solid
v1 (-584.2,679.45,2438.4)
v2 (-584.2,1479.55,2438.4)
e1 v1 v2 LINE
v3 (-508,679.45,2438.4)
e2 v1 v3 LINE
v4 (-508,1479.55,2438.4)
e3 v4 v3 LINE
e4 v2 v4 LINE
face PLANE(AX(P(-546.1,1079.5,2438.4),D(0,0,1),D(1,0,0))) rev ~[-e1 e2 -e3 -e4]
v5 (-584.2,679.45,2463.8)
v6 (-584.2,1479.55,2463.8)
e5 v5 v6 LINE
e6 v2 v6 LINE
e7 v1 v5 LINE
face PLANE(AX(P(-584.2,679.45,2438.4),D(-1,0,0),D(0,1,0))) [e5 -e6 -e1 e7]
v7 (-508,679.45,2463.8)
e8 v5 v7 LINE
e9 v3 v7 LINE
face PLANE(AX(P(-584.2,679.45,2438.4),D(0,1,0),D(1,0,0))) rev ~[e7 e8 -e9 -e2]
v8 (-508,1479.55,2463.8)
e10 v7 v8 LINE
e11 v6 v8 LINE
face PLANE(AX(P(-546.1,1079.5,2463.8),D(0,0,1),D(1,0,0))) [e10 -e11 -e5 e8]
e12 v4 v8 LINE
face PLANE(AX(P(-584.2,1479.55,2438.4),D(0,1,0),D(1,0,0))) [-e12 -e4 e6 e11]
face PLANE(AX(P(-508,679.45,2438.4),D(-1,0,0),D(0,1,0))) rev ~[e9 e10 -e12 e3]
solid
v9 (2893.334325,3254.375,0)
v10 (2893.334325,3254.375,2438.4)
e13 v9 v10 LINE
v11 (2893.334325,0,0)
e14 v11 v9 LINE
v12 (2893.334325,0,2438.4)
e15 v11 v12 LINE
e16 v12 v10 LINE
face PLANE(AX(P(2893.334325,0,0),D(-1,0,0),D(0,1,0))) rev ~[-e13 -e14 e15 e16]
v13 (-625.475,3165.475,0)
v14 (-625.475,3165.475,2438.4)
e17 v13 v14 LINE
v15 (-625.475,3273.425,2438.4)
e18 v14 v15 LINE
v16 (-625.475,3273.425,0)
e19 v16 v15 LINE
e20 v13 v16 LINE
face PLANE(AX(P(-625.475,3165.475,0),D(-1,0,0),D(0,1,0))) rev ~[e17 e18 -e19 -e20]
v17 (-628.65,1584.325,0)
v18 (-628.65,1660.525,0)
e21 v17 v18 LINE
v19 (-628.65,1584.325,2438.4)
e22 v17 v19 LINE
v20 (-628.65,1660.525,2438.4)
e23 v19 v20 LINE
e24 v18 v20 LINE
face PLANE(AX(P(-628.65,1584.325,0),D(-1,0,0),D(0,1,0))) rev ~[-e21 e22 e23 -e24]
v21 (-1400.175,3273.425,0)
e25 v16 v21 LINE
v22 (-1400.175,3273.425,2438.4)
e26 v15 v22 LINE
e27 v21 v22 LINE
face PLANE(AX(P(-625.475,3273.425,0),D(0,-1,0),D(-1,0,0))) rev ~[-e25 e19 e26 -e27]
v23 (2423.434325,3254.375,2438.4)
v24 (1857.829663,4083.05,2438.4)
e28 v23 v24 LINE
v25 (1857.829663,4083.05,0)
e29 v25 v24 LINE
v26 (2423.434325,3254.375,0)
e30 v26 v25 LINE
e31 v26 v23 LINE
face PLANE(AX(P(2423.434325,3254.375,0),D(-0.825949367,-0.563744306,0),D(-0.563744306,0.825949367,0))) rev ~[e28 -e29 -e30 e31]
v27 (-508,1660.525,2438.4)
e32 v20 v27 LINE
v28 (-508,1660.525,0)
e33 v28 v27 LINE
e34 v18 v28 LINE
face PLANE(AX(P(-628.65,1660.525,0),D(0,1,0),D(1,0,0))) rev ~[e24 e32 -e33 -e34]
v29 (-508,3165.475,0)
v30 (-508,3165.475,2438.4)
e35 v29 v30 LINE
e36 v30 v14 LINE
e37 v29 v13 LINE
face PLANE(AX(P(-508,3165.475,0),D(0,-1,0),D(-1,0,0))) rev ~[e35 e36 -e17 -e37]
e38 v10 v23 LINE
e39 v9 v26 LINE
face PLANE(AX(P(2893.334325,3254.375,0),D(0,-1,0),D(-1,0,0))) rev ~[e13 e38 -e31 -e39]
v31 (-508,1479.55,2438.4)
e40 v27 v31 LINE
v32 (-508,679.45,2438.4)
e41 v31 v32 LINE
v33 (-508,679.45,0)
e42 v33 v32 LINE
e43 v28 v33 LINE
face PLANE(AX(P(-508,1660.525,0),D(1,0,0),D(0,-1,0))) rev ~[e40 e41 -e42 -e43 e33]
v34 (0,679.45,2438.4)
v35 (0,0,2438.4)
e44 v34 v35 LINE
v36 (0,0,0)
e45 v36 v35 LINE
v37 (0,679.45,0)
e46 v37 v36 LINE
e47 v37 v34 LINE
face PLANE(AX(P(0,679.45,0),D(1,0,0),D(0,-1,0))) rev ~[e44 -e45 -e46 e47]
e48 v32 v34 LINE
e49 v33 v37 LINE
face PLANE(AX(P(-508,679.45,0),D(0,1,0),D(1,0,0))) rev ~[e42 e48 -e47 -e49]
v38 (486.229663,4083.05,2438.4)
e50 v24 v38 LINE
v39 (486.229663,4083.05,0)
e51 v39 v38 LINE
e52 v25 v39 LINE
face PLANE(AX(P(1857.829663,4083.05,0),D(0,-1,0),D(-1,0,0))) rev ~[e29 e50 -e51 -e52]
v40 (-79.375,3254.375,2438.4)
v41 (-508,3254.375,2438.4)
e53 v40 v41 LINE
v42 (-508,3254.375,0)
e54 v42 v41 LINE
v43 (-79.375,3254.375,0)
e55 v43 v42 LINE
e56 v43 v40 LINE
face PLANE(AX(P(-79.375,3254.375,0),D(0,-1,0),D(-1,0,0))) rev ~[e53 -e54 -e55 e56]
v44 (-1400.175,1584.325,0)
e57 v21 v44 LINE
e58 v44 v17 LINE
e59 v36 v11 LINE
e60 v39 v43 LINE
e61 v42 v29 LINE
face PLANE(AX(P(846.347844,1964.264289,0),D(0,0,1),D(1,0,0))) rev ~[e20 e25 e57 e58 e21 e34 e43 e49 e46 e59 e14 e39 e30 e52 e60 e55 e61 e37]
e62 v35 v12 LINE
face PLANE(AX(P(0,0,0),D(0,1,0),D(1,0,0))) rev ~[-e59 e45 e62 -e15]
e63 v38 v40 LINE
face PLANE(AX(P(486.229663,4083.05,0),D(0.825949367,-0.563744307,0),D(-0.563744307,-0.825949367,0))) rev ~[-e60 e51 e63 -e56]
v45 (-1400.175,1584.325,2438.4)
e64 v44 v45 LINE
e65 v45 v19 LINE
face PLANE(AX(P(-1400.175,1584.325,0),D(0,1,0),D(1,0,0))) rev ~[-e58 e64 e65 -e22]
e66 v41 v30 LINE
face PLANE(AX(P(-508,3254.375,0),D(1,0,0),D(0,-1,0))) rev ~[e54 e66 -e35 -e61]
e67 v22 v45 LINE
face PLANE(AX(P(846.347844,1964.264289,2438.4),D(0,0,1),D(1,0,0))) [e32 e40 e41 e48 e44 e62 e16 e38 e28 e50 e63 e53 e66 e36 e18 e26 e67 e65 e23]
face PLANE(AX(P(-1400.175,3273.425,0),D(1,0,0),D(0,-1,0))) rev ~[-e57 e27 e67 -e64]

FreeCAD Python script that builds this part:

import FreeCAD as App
import Part
import Sketcher

V = App.Vector
Q = App.Units.Quantity

doc = App.newDocument("Part")
body = doc.addObject("PartDesign::Body", "Body")
body.AllowCompound = True

# Sketch on XY plane
sketch1 = body.newObject("Sketcher::SketchObject", "Sketch")
sketch1.AttachmentSupport = (doc.getObject("XY_Plane"), [""])
sketch1.MapMode = "FlatFace"
sketch1.addGeometry([
    Part.LineSegment(V(1858, 4083, 0), V(486, 4083, 0)),  # 0
    Part.LineSegment(V(486, 4083, 0), V(-79, 3254, 0)),  # 1
    Part.LineSegment(V(-79, 3254, 0), V(-508, 3254, 0)),  # 2
    Part.LineSegment(V(-508, 3254, 0), V(-508, 3165, 0)),  # 3
    Part.LineSegment(V(-508, 3165, 0), V(-625, 3165, 0)),  # 4
    Part.LineSegment(V(-625, 3165, 0), V(-625, 3273, 0)),  # 5
    Part.LineSegment(V(-625, 3273, 0), V(-1400, 3273, 0)),  # 6
    Part.LineSegment(V(-1400, 3273, 0), V(-1400, 1584, 0)),  # 7
    Part.LineSegment(V(-1400, 1584, 0), V(-629, 1584, 0)),  # 8
    Part.LineSegment(V(-629, 1584, 0), V(-629, 1661, 0)),  # 9
    Part.LineSegment(V(-629, 1661, 0), V(-508, 1661, 0)),  # 10
    Part.LineSegment(V(-508, 1661, 0), V(-508, 679, 0)),  # 11
    Part.LineSegment(V(-508, 679, 0), V(0, 679, 0)),  # 12
    Part.LineSegment(V(0, 679, 0), V(0, 0, 0)),  # 13
    Part.LineSegment(V(0, 0, 0), V(2893, 0, 0)),  # 14
    Part.LineSegment(V(2893, 0, 0), V(2893, 3254, 0)),  # 15
    Part.LineSegment(V(2893, 3254, 0), V(2423, 3254, 0)),  # 16
    Part.LineSegment(V(2423, 3254, 0), V(1858, 4083, 0)),  # 17
], False)
sketch1.addConstraint([
    Sketcher.Constraint("Coincident", 0, 2, 1, 1),
    Sketcher.Constraint("Coincident", 1, 2, 2, 1),
    Sketcher.Constraint("Coincident", 2, 2, 3, 1),
    Sketcher.Constraint("Coincident", 3, 2, 4, 1),
    Sketcher.Constraint("Coincident", 4, 2, 5, 1),
    Sketcher.Constraint("Coincident", 5, 2, 6, 1),
    Sketcher.Constraint("Coincident", 6, 2, 7, 1),
    Sketcher.Constraint("Coincident", 7, 2, 8, 1),
    Sketcher.Constraint("Coincident", 8, 2, 9, 1),
    Sketcher.Constraint("Coincident", 9, 2, 10, 1),
    Sketcher.Constraint("Coincident", 10, 2, 11, 1),
    Sketcher.Constraint("Coincident", 11, 2, 12, 1),
    Sketcher.Constraint("Coincident", 12, 2, 13, 1),
    Sketcher.Constraint("Coincident", 13, 2, 14, 1),
    Sketcher.Constraint("Coincident", 14, 2, 15, 1),
    Sketcher.Constraint("Coincident", 15, 2, 16, 1),
    Sketcher.Constraint("Coincident", 16, 2, 17, 1),
    Sketcher.Constraint("Coincident", 17, 2, 0, 1),
    Sketcher.Constraint("Horizontal", 0),
    Sketcher.Constraint("Horizontal", 2),
    Sketcher.Constraint("Vertical", 3),
    Sketcher.Constraint("Horizontal", 4),
    Sketcher.Constraint("Vertical", 5),
    Sketcher.Constraint("Horizontal", 6),
    Sketcher.Constraint("Vertical", 7),
    Sketcher.Constraint("Horizontal", 8),
    Sketcher.Constraint("Vertical", 9),
    Sketcher.Constraint("Horizontal", 10),
    Sketcher.Constraint("Vertical", 11),
    Sketcher.Constraint("Horizontal", 12),
    Sketcher.Constraint("Vertical", 13),
    Sketcher.Constraint("Horizontal", 14),
    Sketcher.Constraint("Vertical", 15),
    Sketcher.Constraint("Horizontal", 16),
    Sketcher.Constraint("Coincident", 13, 2, -1, 1),
    Sketcher.Constraint("Horizontal", 2, 2, 15, 2),
    Sketcher.Constraint("Vertical", 3, 2, 10, 2),
    Sketcher.Constraint("Equal", 1, 17),
    Sketcher.Constraint("DistanceX", 0, 2, 0, 1, Q("54 in")),
    Sketcher.Constraint("DistanceX", 12, 1, 12, 2, Q("20 in")),
    Sketcher.Constraint("DistanceY", 9, 1, 9, 2, Q("3 in")),
    Sketcher.Constraint("DistanceX", 6, 2, 6, 1, Q("30.5 in")),
    Sketcher.Constraint("DistanceX", 16, 2, 16, 1, Q("18.5 in")),
    Sketcher.Constraint("DistanceY", 3, 2, 3, 1, Q("3.5 in")),
    Sketcher.Constraint("DistanceY", 7, 2, 7, 1, Q("66.5 in")),
    Sketcher.Constraint("DistanceX", 6, 2, 1, 2, Q("52 in")),
    Sketcher.Constraint("Distance", 1, Q("39.5 in")),
    Sketcher.Constraint("DistanceX", 10, 1, 10, 2, Q("4.75 in")),
    Sketcher.Constraint("DistanceY", 5, 1, 5, 2, Q("4.25 in")),
    Sketcher.Constraint("DistanceY", 13, 2, 13, 1, Q("26.75 in")),
    Sketcher.Constraint("DistanceX", 2, 2, 2, 1, Q("16.875 in")),
    Sketcher.Constraint("DistanceY", 11, 2, 11, 1, Q("38.625 in")),
    Sketcher.Constraint("DistanceY", -1, 1, 0, 2, Q("160.75 in")),
])
pad1 = body.newObject("PartDesign::Pad", "Pad")
pad1.Profile = sketch1
pad1.Length = Q("96 in")

# Sketch on XY plane
sketch2 = body.newObject("Sketcher::SketchObject", "Sketch001")
sketch2.AttachmentSupport = (doc.getObject("XY_Plane"), [""])
sketch2.MapMode = "FlatFace"
sketch2.AttachmentOffset = App.Placement(V(0, 0, 96 * 25.4), App.Rotation())
sketch2.addGeometry([
    Part.LineSegment(V(-584, 1480, 0), V(-584, 679, 0)),
    Part.LineSegment(V(-584, 679, 0), V(-508, 679, 0)),
    Part.LineSegment(V(-508, 679, 0), V(-508, 1480, 0)),
    Part.LineSegment(V(-508, 1480, 0), V(-584, 1480, 0)),
], False)
sketch2.addConstraint([
    Sketcher.Constraint("Coincident", 0, 2, 1, 1),
    Sketcher.Constraint("Coincident", 1, 2, 2, 1),
    Sketcher.Constraint("Coincident", 2, 2, 3, 1),
    Sketcher.Constraint("Coincident", 3, 2, 0, 1),
    Sketcher.Constraint("Vertical", 0),
    Sketcher.Constraint("Horizontal", 1),
    Sketcher.Constraint("Vertical", 2),
    Sketcher.Constraint("Horizontal", 3),
    Sketcher.Constraint("DistanceX", 1, 1, 1, 2, Q("3 in")),
    Sketcher.Constraint("DistanceY", 0, 2, 0, 1, Q("31.5 in")),
    Sketcher.Constraint("DistanceX", 0, 2, -1, 1, Q("23 in")),
    Sketcher.Constraint("DistanceY", -1, 1, 0, 2, Q("26.75 in")),
])
pad2 = body.newObject("PartDesign::Pad", "Pad001")
pad2.Profile = sketch2
pad2.Length = Q("1 in")

doc.recompute()
